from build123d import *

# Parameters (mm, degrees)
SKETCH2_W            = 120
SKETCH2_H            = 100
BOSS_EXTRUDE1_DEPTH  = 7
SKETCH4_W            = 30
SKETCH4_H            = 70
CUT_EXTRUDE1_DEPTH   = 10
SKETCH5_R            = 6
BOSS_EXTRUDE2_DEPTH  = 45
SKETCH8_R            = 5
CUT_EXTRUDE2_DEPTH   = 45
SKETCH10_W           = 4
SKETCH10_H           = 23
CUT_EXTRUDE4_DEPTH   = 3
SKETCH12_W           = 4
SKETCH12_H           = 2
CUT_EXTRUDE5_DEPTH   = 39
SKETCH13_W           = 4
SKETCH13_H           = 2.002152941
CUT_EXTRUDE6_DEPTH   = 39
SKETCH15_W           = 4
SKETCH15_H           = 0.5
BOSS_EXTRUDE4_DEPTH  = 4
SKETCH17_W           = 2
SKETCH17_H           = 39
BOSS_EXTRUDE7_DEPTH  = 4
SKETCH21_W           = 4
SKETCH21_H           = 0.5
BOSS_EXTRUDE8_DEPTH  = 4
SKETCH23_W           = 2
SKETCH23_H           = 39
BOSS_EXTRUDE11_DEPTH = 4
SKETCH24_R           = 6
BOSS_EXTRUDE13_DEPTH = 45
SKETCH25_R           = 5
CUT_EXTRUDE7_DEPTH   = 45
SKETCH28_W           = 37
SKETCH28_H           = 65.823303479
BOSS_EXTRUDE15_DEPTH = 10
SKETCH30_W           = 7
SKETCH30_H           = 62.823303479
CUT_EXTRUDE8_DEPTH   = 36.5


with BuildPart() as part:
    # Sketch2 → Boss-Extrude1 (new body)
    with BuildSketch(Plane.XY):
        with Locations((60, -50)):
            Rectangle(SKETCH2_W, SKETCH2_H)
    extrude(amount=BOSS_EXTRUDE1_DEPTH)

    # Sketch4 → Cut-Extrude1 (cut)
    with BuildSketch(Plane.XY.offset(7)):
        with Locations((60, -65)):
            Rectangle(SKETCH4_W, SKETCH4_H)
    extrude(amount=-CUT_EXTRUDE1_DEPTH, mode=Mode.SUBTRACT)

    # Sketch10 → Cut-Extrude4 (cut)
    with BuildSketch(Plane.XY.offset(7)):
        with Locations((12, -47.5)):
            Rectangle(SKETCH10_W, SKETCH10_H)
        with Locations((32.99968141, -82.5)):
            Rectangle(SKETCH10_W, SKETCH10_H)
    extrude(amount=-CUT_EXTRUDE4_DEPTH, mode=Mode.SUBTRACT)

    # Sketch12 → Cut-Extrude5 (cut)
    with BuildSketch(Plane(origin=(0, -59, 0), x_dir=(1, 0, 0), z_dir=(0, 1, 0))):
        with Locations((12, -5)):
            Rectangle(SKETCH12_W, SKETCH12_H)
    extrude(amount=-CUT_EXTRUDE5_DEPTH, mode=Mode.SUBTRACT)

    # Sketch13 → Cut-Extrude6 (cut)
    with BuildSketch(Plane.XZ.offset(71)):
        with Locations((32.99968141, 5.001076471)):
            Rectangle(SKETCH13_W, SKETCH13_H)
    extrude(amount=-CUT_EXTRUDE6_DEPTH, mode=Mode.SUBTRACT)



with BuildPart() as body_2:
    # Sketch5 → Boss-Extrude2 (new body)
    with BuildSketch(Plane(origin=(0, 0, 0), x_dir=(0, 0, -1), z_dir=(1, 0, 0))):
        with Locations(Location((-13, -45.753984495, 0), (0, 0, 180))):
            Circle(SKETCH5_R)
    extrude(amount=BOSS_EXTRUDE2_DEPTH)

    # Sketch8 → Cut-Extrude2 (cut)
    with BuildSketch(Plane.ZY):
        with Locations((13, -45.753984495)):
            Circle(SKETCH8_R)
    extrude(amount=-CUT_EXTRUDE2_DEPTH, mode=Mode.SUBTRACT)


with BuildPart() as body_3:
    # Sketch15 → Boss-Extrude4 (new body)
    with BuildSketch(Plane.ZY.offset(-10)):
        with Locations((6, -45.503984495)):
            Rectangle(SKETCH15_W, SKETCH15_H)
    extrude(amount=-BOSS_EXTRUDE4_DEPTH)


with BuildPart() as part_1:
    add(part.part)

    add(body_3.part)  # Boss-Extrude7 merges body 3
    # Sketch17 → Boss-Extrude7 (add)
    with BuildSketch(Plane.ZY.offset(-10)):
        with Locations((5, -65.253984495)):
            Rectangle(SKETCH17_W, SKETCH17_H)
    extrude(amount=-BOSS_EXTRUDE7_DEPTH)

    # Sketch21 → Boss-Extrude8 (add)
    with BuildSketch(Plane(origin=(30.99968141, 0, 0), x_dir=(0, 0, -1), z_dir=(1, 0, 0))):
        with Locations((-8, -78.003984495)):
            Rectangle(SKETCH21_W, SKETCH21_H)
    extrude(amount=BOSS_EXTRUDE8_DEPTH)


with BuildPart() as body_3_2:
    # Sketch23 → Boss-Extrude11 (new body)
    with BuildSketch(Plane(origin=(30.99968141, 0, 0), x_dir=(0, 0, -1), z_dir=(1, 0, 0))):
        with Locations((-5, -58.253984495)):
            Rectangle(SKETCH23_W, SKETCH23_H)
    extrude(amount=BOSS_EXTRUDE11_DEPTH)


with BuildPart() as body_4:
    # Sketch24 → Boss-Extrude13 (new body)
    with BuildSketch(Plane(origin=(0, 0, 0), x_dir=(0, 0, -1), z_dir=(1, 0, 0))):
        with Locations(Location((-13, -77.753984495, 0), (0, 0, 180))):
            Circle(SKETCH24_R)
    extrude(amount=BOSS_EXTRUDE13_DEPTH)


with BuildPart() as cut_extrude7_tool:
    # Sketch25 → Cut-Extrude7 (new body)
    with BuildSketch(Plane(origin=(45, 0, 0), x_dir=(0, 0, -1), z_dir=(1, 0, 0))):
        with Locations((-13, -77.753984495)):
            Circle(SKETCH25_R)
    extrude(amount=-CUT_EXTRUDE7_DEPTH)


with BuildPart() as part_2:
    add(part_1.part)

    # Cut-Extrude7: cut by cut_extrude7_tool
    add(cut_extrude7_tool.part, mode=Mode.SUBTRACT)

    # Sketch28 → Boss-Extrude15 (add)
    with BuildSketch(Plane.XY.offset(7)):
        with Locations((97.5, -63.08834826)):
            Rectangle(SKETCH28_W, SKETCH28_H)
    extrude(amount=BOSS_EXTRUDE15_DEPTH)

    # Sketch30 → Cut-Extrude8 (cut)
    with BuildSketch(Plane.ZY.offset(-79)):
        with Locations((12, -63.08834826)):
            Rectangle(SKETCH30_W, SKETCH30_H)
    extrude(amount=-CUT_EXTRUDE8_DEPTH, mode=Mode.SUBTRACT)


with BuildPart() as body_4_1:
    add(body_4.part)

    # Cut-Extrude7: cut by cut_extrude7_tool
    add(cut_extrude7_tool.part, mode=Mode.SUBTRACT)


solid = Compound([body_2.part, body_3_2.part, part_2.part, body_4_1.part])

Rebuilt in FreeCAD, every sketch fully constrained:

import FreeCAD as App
import Part
import Sketcher
from FreeCAD import Vector
Q = App.Units.Quantity


def add_polygon(sketch, points):
    """Adds a closed chain of lines whose ends are joined by coincident constraints."""
    first, n = sketch.GeometryCount, len(points)
    for a, b in zip(points, points[1:] + points[:1]):
        sketch.addGeometry(Part.LineSegment(App.Vector(*a, 0), App.Vector(*b, 0)), False)
    for i in range(n):
        sketch.addConstraint(Sketcher.Constraint("Coincident", first + i, 2, first + (i + 1) % n, 1))

doc = App.newDocument("Part")
body = doc.addObject("PartDesign::Body", "Body")

# Sketch on XY plane
sketch1 = body.newObject("Sketcher::SketchObject", "Sketch")
sketch1.AttachmentSupport = (doc.getObject("XY_Plane"), [""])
sketch1.MapMode = "FlatFace"
add_polygon(sketch1, [(0, 0), (0, -100), (120, -100), (120, 0)])  # lines 0-3
sketch1.addConstraint([
    Sketcher.Constraint("Vertical", 0),
    Sketcher.Constraint("Horizontal", 1),
    Sketcher.Constraint("Vertical", 2),
    Sketcher.Constraint("Horizontal", 3),
    Sketcher.Constraint("Coincident", 3, 2, -1, 1),
    Sketcher.Constraint("DistanceX", 1, 1, 1, 2, Q("120 mm")),
    Sketcher.Constraint("DistanceY", 0, 2, 0, 1, Q("100 mm")),
])
pad1 = body.newObject("PartDesign::Pad", "Pad")
pad1.Profile = sketch1
pad1.Length = 7

# Sketch on XY plane
sketch2 = body.newObject("Sketcher::SketchObject", "Sketch001")
sketch2.AttachmentSupport = (doc.getObject("XY_Plane"), [""])
sketch2.MapMode = "FlatFace"
sketch2.AttachmentOffset = App.Placement(Vector(0, 0, 7), App.Rotation())
add_polygon(sketch2, [(45, -30), (45, -100), (75, -100), (75, -30)])  # lines 0-3
sketch2.addConstraint([
    Sketcher.Constraint("Vertical", 0),
    Sketcher.Constraint("Horizontal", 1),
    Sketcher.Constraint("Vertical", 2),
    Sketcher.Constraint("Horizontal", 3),
    Sketcher.Constraint("DistanceX", 1, 1, 1, 2, Q("30 mm")),
    Sketcher.Constraint("DistanceY", 0, 2, 0, 1, Q("70 mm")),
    Sketcher.Constraint("DistanceX", -1, 1, 0, 2, Q("45 mm")),
    Sketcher.Constraint("DistanceY", 0, 2, -1, 1, Q("100 mm")),
])
pocket1 = body.newObject("PartDesign::Pocket", "Pocket")
pocket1.Profile = sketch2
pocket1.Length = 10

# Sketch on XY plane
sketch3 = body.newObject("Sketcher::SketchObject", "Sketch002")
sketch3.AttachmentSupport = (doc.getObject("XY_Plane"), [""])
sketch3.MapMode = "FlatFace"
sketch3.AttachmentOffset = App.Placement(Vector(0, 0, 7), App.Rotation())
add_polygon(sketch3, [(10, -36), (10, -59), (14, -59), (14, -36)])  # lines 0-3
add_polygon(sketch3, [(31, -71), (31, -94), (35, -94), (35, -71)])  # lines 4-7
sketch3.addConstraint([
    Sketcher.Constraint("Vertical", 0),
    Sketcher.Constraint("Horizontal", 1),
    Sketcher.Constraint("Vertical", 2),
    Sketcher.Constraint("Horizontal", 3),
    Sketcher.Constraint("Vertical", 4),
    Sketcher.Constraint("Horizontal", 5),
    Sketcher.Constraint("Vertical", 6),
    Sketcher.Constraint("Horizontal", 7),
    Sketcher.Constraint("Equal", 3, 5),
    Sketcher.Constraint("Equal", 2, 4),
    Sketcher.Constraint("DistanceX", 1, 1, 1, 2, Q("4 mm")),
    Sketcher.Constraint("DistanceY", 0, 2, 0, 1, Q("23 mm")),
    Sketcher.Constraint("DistanceX", -1, 1, 0, 2, Q("10 mm")),
    Sketcher.Constraint("DistanceY", 0, 2, -1, 1, Q("59 mm")),
    Sketcher.Constraint("DistanceY", 4, 2, -1, 1, Q("94 mm")),
    Sketcher.Constraint("DistanceX", -1, 1, 4, 2, Q("30.999681 mm")),
])
pocket2 = body.newObject("PartDesign::Pocket", "Pocket001")
pocket2.Profile = sketch3
pocket2.Length = 3

# Sketch on XZ plane
sketch4 = body.newObject("Sketcher::SketchObject", "Sketch003")
sketch4.AttachmentSupport = (doc.getObject("XZ_Plane"), [""])
sketch4.MapMode = "FlatFace"
sketch4.AttachmentOffset = App.Placement(Vector(0, 0, 59), App.Rotation())
add_polygon(sketch4, [(10, 4), (10, 6), (14, 6), (14, 4)])  # lines 0-3
sketch4.addConstraint([
    Sketcher.Constraint("Vertical", 0),
    Sketcher.Constraint("Horizontal", 1),
    Sketcher.Constraint("Vertical", 2),
    Sketcher.Constraint("Horizontal", 3),
    Sketcher.Constraint("DistanceX", 1, 1, 1, 2, Q("4 mm")),
    Sketcher.Constraint("DistanceY", 0, 1, 0, 2, Q("2 mm")),
    Sketcher.Constraint("DistanceX", -1, 1, 0, 2, Q("10 mm")),
    Sketcher.Constraint("DistanceY", -1, 1, 0, 2, Q("6 mm")),
])
pocket3 = body.newObject("PartDesign::Pocket", "Pocket002")
pocket3.Profile = sketch4
pocket3.Length = 39
pocket3.Reversed = True

# Sketch on XZ plane
sketch5 = body.newObject("Sketcher::SketchObject", "Sketch004")
sketch5.AttachmentSupport = (doc.getObject("XZ_Plane"), [""])
sketch5.MapMode = "FlatFace"
sketch5.AttachmentOffset = App.Placement(Vector(0, 0, 71), App.Rotation())
add_polygon(sketch5, [(31, 6), (31, 4), (35, 4), (35, 6)])  # lines 0-3
sketch5.addConstraint([
    Sketcher.Constraint("Vertical", 0),
    Sketcher.Constraint("Horizontal", 1),
    Sketcher.Constraint("Vertical", 2),
    Sketcher.Constraint("Horizontal", 3),
    Sketcher.Constraint("DistanceX", 1, 1, 1, 2, Q("4 mm")),
    Sketcher.Constraint("DistanceY", -1, 1, 0, 2, Q("4 mm")),
    Sketcher.Constraint("DistanceY", 0, 2, 0, 1, Q("2.002153 mm")),
    Sketcher.Constraint("DistanceX", -1, 1, 0, 2, Q("30.999681 mm")),
])
pocket4 = body.newObject("PartDesign::Pocket", "Pocket003")
pocket4.Profile = sketch5
pocket4.Length = 39
body2 = doc.addObject("PartDesign::Body", "Body001")

# Sketch on YZ plane
sketch6 = body2.newObject("Sketcher::SketchObject", "Sketch005")
sketch6.AttachmentSupport = (doc.getObject("YZ_Plane001"), [""])
sketch6.MapMode = "FlatFace"
sketch6.addGeometry(Part.Circle(Vector(-46, 13, 0), Vector(0, 0, 1), 6), False)
sketch6.addConstraint([
    Sketcher.Constraint("Diameter", 0, Q("12 mm")),
    Sketcher.Constraint("DistanceY", -1, 1, 0, 3, Q("13 mm")),
    Sketcher.Constraint("DistanceX", 0, 3, -1, 1, Q("45.753984 mm")),
])
pad2 = body2.newObject("PartDesign::Pad", "Pad001")
pad2.Profile = sketch6
pad2.Length = 45

# Sketch on YZ plane
sketch7 = body2.newObject("Sketcher::SketchObject", "Sketch006")
sketch7.AttachmentSupport = (doc.getObject("YZ_Plane001"), [""])
sketch7.MapMode = "FlatFace"
sketch7.addGeometry(Part.Circle(Vector(-46, 13, 0), Vector(0, 0, 1), 5), False)
sketch7.addConstraint([
    Sketcher.Constraint("Diameter", 0, Q("10 mm")),
    Sketcher.Constraint("DistanceY", -1, 1, 0, 3, Q("13 mm")),
    Sketcher.Constraint("DistanceX", 0, 3, -1, 1, Q("45.753984 mm")),
])
pocket5 = body2.newObject("PartDesign::Pocket", "Pocket004")
pocket5.Profile = sketch7
pocket5.Length = 45
pocket5.Reversed = True
body3 = doc.addObject("PartDesign::Body", "Body002")

# Sketch on YZ plane
sketch8 = body3.newObject("Sketcher::SketchObject", "Sketch007")
sketch8.AttachmentSupport = (doc.getObject("YZ_Plane002"), [""])
sketch8.MapMode = "FlatFace"
sketch8.AttachmentOffset = App.Placement(Vector(0, 0, 10), App.Rotation())
add_polygon(sketch8, [(-45.3, 4), (-45.8, 4), (-45.8, 8), (-45.3, 8)])  # lines 0-3
sketch8.addConstraint([
    Sketcher.Constraint("Horizontal", 0),
    Sketcher.Constraint("Vertical", 1),
    Sketcher.Constraint("Horizontal", 2),
    Sketcher.Constraint("Vertical", 3),
    Sketcher.Constraint("DistanceY", 1, 1, 1, 2, Q("4 mm")),
    Sketcher.Constraint("DistanceX", 0, 2, 0, 1, Q("0.5 mm")),
    Sketcher.Constraint("DistanceY", -1, 1, 0, 2, Q("4 mm")),
    Sketcher.Constraint("DistanceX", 0, 2, -1, 1, Q("45.753984 mm")),
])
pad3 = body3.newObject("PartDesign::Pad", "Pad002")
pad3.Profile = sketch8
pad3.Length = 4
doc.recompute()

boolean = body.newObject("PartDesign::Boolean", "Boolean")
boolean.Type = "Fuse"
boolean.addObjects([body3])

# Sketch on YZ plane
sketch9 = body.newObject("Sketcher::SketchObject", "Sketch008")
sketch9.AttachmentSupport = (doc.getObject("YZ_Plane"), [""])
sketch9.MapMode = "FlatFace"
sketch9.AttachmentOffset = App.Placement(Vector(0, 0, 10), App.Rotation())
add_polygon(sketch9, [(-45.8, 4), (-84.8, 4), (-84.8, 6), (-45.8, 6)])  # lines 0-3
sketch9.addConstraint([
    Sketcher.Constraint("Horizontal", 0),
    Sketcher.Constraint("Vertical", 1),
    Sketcher.Constraint("Horizontal", 2),
    Sketcher.Constraint("Vertical", 3),
    Sketcher.Constraint("DistanceX", 0, 2, 0, 1, Q("39 mm")),
    Sketcher.Constraint("DistanceY", 1, 1, 1, 2, Q("2 mm")),
    Sketcher.Constraint("DistanceY", -1, 1, 0, 2, Q("4 mm")),
    Sketcher.Constraint("DistanceX", 0, 2, -1, 1, Q("84.753984 mm")),
])
pad4 = body.newObject("PartDesign::Pad", "Pad003")
pad4.Profile = sketch9
pad4.Length = 4

# Sketch on YZ plane
sketch10 = body.newObject("Sketcher::SketchObject", "Sketch009")
sketch10.AttachmentSupport = (doc.getObject("YZ_Plane"), [""])
sketch10.MapMode = "FlatFace"
sketch10.AttachmentOffset = App.Placement(Vector(0, 0, 30.999681), App.Rotation())
add_polygon(sketch10, [(-77.8, 10), (-78.3, 10), (-78.3, 6), (-77.8, 6)])  # lines 0-3
sketch10.addConstraint([
    Sketcher.Constraint("Horizontal", 0),
    Sketcher.Constraint("Vertical", 1),
    Sketcher.Constraint("Horizontal", 2),
    Sketcher.Constraint("Vertical", 3),
    Sketcher.Constraint("DistanceY", 1, 2, 1, 1, Q("4 mm")),
    Sketcher.Constraint("DistanceX", 0, 2, 0, 1, Q("0.5 mm")),
    Sketcher.Constraint("DistanceY", -1, 1, 0, 2, Q("10 mm")),
    Sketcher.Constraint("DistanceX", 0, 2, -1, 1, Q("78.253984 mm")),
])
pad5 = body.newObject("PartDesign::Pad", "Pad004")
pad5.Profile = sketch10
pad5.Length = 4
body4 = doc.addObject("PartDesign::Body", "Body003")

# Sketch on YZ plane
sketch11 = body4.newObject("Sketcher::SketchObject", "Sketch010")
sketch11.AttachmentSupport = (doc.getObject("YZ_Plane003"), [""])
sketch11.MapMode = "FlatFace"
sketch11.AttachmentOffset = App.Placement(Vector(0, 0, 30.999681), App.Rotation())
add_polygon(sketch11, [(-38.8, 6), (-77.8, 6), (-77.8, 4), (-38.8, 4)])  # lines 0-3
sketch11.addConstraint([
    Sketcher.Constraint("Horizontal", 0),
    Sketcher.Constraint("Vertical", 1),
    Sketcher.Constraint("Horizontal", 2),
    Sketcher.Constraint("Vertical", 3),
    Sketcher.Constraint("DistanceX", 0, 2, 0, 1, Q("39 mm")),
    Sketcher.Constraint("DistanceY", 1, 2, 1, 1, Q("2 mm")),
    Sketcher.Constraint("DistanceY", -1, 1, 0, 2, Q("6 mm")),
    Sketcher.Constraint("DistanceX", 0, 2, -1, 1, Q("77.753984 mm")),
])
pad6 = body4.newObject("PartDesign::Pad", "Pad005")
pad6.Profile = sketch11
pad6.Length = 4
body5 = doc.addObject("PartDesign::Body", "Body004")

# Sketch on YZ plane
sketch12 = body5.newObject("Sketcher::SketchObject", "Sketch011")
sketch12.AttachmentSupport = (doc.getObject("YZ_Plane004"), [""])
sketch12.MapMode = "FlatFace"
sketch12.addGeometry(Part.Circle(Vector(-78, 13, 0), Vector(0, 0, 1), 6), False)
sketch12.addConstraint([
    Sketcher.Constraint("Diameter", 0, Q("12 mm")),
    Sketcher.Constraint("DistanceY", -1, 1, 0, 3, Q("13 mm")),
    Sketcher.Constraint("DistanceX", 0, 3, -1, 1, Q("77.753984 mm")),
])
pad7 = body5.newObject("PartDesign::Pad", "Pad006")
pad7.Profile = sketch12
pad7.Length = 45
body6 = doc.addObject("PartDesign::Body", "Body005")

# Sketch on YZ plane
sketch13 = body6.newObject("Sketcher::SketchObject", "Sketch012")
sketch13.AttachmentSupport = (doc.getObject("YZ_Plane005"), [""])
sketch13.MapMode = "FlatFace"
sketch13.AttachmentOffset = App.Placement(Vector(0, 0, 45), App.Rotation())
sketch13.addGeometry(Part.Circle(Vector(-78, 13, 0), Vector(0, 0, 1), 5), False)
sketch13.addConstraint([
    Sketcher.Constraint("Diameter", 0, Q("10 mm")),
    Sketcher.Constraint("DistanceY", -1, 1, 0, 3, Q("13 mm")),
    Sketcher.Constraint("DistanceX", 0, 3, -1, 1, Q("77.753984 mm")),
])
pad8 = body6.newObject("PartDesign::Pad", "Pad007")
pad8.Profile = sketch13
pad8.Length = 45
pad8.Reversed = True
doc.recompute()

body7 = doc.addObject("PartDesign::Body", "Body006")
body7.BaseFeature = body6
boolean2 = body.newObject("PartDesign::Boolean", "Boolean001")
boolean2.Type = "Cut"
boolean2.addObjects([body7])
doc.recompute()

# Sketch on XY plane
sketch14 = body.newObject("Sketcher::SketchObject", "Sketch013")
sketch14.AttachmentSupport = (doc.getObject("XY_Plane"), [""])
sketch14.MapMode = "FlatFace"
sketch14.AttachmentOffset = App.Placement(Vector(0, 0, 7), App.Rotation())
add_polygon(sketch14, [(79, -30), (79, -96), (116, -96), (116, -30)])  # lines 0-3
sketch14.addConstraint([
    Sketcher.Constraint("Vertical", 0),
    Sketcher.Constraint("Horizontal", 1),
    Sketcher.Constraint("Vertical", 2),
    Sketcher.Constraint("Horizontal", 3),
    Sketcher.Constraint("DistanceX", 1, 1, 1, 2, Q("37 mm")),
    Sketcher.Constraint("DistanceX", -1, 1, 0, 2, Q("79 mm")),
    Sketcher.Constraint("DistanceY", 0, 2, -1, 1, Q("96 mm")),
    Sketcher.Constraint("DistanceY", 0, 2, 0, 1, Q("65.823303 mm")),
])
pad9 = body.newObject("PartDesign::Pad", "Pad008")
pad9.Profile = sketch14
pad9.Length = 10

# Sketch on YZ plane
sketch15 = body.newObject("Sketcher::SketchObject", "Sketch014")
sketch15.AttachmentSupport = (doc.getObject("YZ_Plane"), [""])
sketch15.MapMode = "FlatFace"
sketch15.AttachmentOffset = App.Placement(Vector(0, 0, 79), App.Rotation())
add_polygon(sketch15, [(-32, 8), (-94, 8), (-94, 16), (-32, 16)])  # lines 0-3
sketch15.addConstraint([
    Sketcher.Constraint("Horizontal", 0),
    Sketcher.Constraint("Vertical", 1),
    Sketcher.Constraint("Horizontal", 2),
    Sketcher.Constraint("Vertical", 3),
    Sketcher.Constraint("DistanceY", 1, 1, 1, 2, Q("7 mm")),
    Sketcher.Constraint("DistanceX", 0, 2, -1, 1, Q("94.5 mm")),
    Sketcher.Constraint("DistanceY", -1, 1, 0, 2, Q("8.5 mm")),
    Sketcher.Constraint("DistanceX", 0, 2, 0, 1, Q("62.823303 mm")),
])
pocket6 = body.newObject("PartDesign::Pocket", "Pocket005")
pocket6.Profile = sketch15
pocket6.Length = 36.5
pocket6.Reversed = True
doc.recompute()

boolean3 = body5.newObject("PartDesign::Boolean", "Boolean002")
boolean3.Type = "Cut"
boolean3.addObjects([body6])

doc.recompute()
